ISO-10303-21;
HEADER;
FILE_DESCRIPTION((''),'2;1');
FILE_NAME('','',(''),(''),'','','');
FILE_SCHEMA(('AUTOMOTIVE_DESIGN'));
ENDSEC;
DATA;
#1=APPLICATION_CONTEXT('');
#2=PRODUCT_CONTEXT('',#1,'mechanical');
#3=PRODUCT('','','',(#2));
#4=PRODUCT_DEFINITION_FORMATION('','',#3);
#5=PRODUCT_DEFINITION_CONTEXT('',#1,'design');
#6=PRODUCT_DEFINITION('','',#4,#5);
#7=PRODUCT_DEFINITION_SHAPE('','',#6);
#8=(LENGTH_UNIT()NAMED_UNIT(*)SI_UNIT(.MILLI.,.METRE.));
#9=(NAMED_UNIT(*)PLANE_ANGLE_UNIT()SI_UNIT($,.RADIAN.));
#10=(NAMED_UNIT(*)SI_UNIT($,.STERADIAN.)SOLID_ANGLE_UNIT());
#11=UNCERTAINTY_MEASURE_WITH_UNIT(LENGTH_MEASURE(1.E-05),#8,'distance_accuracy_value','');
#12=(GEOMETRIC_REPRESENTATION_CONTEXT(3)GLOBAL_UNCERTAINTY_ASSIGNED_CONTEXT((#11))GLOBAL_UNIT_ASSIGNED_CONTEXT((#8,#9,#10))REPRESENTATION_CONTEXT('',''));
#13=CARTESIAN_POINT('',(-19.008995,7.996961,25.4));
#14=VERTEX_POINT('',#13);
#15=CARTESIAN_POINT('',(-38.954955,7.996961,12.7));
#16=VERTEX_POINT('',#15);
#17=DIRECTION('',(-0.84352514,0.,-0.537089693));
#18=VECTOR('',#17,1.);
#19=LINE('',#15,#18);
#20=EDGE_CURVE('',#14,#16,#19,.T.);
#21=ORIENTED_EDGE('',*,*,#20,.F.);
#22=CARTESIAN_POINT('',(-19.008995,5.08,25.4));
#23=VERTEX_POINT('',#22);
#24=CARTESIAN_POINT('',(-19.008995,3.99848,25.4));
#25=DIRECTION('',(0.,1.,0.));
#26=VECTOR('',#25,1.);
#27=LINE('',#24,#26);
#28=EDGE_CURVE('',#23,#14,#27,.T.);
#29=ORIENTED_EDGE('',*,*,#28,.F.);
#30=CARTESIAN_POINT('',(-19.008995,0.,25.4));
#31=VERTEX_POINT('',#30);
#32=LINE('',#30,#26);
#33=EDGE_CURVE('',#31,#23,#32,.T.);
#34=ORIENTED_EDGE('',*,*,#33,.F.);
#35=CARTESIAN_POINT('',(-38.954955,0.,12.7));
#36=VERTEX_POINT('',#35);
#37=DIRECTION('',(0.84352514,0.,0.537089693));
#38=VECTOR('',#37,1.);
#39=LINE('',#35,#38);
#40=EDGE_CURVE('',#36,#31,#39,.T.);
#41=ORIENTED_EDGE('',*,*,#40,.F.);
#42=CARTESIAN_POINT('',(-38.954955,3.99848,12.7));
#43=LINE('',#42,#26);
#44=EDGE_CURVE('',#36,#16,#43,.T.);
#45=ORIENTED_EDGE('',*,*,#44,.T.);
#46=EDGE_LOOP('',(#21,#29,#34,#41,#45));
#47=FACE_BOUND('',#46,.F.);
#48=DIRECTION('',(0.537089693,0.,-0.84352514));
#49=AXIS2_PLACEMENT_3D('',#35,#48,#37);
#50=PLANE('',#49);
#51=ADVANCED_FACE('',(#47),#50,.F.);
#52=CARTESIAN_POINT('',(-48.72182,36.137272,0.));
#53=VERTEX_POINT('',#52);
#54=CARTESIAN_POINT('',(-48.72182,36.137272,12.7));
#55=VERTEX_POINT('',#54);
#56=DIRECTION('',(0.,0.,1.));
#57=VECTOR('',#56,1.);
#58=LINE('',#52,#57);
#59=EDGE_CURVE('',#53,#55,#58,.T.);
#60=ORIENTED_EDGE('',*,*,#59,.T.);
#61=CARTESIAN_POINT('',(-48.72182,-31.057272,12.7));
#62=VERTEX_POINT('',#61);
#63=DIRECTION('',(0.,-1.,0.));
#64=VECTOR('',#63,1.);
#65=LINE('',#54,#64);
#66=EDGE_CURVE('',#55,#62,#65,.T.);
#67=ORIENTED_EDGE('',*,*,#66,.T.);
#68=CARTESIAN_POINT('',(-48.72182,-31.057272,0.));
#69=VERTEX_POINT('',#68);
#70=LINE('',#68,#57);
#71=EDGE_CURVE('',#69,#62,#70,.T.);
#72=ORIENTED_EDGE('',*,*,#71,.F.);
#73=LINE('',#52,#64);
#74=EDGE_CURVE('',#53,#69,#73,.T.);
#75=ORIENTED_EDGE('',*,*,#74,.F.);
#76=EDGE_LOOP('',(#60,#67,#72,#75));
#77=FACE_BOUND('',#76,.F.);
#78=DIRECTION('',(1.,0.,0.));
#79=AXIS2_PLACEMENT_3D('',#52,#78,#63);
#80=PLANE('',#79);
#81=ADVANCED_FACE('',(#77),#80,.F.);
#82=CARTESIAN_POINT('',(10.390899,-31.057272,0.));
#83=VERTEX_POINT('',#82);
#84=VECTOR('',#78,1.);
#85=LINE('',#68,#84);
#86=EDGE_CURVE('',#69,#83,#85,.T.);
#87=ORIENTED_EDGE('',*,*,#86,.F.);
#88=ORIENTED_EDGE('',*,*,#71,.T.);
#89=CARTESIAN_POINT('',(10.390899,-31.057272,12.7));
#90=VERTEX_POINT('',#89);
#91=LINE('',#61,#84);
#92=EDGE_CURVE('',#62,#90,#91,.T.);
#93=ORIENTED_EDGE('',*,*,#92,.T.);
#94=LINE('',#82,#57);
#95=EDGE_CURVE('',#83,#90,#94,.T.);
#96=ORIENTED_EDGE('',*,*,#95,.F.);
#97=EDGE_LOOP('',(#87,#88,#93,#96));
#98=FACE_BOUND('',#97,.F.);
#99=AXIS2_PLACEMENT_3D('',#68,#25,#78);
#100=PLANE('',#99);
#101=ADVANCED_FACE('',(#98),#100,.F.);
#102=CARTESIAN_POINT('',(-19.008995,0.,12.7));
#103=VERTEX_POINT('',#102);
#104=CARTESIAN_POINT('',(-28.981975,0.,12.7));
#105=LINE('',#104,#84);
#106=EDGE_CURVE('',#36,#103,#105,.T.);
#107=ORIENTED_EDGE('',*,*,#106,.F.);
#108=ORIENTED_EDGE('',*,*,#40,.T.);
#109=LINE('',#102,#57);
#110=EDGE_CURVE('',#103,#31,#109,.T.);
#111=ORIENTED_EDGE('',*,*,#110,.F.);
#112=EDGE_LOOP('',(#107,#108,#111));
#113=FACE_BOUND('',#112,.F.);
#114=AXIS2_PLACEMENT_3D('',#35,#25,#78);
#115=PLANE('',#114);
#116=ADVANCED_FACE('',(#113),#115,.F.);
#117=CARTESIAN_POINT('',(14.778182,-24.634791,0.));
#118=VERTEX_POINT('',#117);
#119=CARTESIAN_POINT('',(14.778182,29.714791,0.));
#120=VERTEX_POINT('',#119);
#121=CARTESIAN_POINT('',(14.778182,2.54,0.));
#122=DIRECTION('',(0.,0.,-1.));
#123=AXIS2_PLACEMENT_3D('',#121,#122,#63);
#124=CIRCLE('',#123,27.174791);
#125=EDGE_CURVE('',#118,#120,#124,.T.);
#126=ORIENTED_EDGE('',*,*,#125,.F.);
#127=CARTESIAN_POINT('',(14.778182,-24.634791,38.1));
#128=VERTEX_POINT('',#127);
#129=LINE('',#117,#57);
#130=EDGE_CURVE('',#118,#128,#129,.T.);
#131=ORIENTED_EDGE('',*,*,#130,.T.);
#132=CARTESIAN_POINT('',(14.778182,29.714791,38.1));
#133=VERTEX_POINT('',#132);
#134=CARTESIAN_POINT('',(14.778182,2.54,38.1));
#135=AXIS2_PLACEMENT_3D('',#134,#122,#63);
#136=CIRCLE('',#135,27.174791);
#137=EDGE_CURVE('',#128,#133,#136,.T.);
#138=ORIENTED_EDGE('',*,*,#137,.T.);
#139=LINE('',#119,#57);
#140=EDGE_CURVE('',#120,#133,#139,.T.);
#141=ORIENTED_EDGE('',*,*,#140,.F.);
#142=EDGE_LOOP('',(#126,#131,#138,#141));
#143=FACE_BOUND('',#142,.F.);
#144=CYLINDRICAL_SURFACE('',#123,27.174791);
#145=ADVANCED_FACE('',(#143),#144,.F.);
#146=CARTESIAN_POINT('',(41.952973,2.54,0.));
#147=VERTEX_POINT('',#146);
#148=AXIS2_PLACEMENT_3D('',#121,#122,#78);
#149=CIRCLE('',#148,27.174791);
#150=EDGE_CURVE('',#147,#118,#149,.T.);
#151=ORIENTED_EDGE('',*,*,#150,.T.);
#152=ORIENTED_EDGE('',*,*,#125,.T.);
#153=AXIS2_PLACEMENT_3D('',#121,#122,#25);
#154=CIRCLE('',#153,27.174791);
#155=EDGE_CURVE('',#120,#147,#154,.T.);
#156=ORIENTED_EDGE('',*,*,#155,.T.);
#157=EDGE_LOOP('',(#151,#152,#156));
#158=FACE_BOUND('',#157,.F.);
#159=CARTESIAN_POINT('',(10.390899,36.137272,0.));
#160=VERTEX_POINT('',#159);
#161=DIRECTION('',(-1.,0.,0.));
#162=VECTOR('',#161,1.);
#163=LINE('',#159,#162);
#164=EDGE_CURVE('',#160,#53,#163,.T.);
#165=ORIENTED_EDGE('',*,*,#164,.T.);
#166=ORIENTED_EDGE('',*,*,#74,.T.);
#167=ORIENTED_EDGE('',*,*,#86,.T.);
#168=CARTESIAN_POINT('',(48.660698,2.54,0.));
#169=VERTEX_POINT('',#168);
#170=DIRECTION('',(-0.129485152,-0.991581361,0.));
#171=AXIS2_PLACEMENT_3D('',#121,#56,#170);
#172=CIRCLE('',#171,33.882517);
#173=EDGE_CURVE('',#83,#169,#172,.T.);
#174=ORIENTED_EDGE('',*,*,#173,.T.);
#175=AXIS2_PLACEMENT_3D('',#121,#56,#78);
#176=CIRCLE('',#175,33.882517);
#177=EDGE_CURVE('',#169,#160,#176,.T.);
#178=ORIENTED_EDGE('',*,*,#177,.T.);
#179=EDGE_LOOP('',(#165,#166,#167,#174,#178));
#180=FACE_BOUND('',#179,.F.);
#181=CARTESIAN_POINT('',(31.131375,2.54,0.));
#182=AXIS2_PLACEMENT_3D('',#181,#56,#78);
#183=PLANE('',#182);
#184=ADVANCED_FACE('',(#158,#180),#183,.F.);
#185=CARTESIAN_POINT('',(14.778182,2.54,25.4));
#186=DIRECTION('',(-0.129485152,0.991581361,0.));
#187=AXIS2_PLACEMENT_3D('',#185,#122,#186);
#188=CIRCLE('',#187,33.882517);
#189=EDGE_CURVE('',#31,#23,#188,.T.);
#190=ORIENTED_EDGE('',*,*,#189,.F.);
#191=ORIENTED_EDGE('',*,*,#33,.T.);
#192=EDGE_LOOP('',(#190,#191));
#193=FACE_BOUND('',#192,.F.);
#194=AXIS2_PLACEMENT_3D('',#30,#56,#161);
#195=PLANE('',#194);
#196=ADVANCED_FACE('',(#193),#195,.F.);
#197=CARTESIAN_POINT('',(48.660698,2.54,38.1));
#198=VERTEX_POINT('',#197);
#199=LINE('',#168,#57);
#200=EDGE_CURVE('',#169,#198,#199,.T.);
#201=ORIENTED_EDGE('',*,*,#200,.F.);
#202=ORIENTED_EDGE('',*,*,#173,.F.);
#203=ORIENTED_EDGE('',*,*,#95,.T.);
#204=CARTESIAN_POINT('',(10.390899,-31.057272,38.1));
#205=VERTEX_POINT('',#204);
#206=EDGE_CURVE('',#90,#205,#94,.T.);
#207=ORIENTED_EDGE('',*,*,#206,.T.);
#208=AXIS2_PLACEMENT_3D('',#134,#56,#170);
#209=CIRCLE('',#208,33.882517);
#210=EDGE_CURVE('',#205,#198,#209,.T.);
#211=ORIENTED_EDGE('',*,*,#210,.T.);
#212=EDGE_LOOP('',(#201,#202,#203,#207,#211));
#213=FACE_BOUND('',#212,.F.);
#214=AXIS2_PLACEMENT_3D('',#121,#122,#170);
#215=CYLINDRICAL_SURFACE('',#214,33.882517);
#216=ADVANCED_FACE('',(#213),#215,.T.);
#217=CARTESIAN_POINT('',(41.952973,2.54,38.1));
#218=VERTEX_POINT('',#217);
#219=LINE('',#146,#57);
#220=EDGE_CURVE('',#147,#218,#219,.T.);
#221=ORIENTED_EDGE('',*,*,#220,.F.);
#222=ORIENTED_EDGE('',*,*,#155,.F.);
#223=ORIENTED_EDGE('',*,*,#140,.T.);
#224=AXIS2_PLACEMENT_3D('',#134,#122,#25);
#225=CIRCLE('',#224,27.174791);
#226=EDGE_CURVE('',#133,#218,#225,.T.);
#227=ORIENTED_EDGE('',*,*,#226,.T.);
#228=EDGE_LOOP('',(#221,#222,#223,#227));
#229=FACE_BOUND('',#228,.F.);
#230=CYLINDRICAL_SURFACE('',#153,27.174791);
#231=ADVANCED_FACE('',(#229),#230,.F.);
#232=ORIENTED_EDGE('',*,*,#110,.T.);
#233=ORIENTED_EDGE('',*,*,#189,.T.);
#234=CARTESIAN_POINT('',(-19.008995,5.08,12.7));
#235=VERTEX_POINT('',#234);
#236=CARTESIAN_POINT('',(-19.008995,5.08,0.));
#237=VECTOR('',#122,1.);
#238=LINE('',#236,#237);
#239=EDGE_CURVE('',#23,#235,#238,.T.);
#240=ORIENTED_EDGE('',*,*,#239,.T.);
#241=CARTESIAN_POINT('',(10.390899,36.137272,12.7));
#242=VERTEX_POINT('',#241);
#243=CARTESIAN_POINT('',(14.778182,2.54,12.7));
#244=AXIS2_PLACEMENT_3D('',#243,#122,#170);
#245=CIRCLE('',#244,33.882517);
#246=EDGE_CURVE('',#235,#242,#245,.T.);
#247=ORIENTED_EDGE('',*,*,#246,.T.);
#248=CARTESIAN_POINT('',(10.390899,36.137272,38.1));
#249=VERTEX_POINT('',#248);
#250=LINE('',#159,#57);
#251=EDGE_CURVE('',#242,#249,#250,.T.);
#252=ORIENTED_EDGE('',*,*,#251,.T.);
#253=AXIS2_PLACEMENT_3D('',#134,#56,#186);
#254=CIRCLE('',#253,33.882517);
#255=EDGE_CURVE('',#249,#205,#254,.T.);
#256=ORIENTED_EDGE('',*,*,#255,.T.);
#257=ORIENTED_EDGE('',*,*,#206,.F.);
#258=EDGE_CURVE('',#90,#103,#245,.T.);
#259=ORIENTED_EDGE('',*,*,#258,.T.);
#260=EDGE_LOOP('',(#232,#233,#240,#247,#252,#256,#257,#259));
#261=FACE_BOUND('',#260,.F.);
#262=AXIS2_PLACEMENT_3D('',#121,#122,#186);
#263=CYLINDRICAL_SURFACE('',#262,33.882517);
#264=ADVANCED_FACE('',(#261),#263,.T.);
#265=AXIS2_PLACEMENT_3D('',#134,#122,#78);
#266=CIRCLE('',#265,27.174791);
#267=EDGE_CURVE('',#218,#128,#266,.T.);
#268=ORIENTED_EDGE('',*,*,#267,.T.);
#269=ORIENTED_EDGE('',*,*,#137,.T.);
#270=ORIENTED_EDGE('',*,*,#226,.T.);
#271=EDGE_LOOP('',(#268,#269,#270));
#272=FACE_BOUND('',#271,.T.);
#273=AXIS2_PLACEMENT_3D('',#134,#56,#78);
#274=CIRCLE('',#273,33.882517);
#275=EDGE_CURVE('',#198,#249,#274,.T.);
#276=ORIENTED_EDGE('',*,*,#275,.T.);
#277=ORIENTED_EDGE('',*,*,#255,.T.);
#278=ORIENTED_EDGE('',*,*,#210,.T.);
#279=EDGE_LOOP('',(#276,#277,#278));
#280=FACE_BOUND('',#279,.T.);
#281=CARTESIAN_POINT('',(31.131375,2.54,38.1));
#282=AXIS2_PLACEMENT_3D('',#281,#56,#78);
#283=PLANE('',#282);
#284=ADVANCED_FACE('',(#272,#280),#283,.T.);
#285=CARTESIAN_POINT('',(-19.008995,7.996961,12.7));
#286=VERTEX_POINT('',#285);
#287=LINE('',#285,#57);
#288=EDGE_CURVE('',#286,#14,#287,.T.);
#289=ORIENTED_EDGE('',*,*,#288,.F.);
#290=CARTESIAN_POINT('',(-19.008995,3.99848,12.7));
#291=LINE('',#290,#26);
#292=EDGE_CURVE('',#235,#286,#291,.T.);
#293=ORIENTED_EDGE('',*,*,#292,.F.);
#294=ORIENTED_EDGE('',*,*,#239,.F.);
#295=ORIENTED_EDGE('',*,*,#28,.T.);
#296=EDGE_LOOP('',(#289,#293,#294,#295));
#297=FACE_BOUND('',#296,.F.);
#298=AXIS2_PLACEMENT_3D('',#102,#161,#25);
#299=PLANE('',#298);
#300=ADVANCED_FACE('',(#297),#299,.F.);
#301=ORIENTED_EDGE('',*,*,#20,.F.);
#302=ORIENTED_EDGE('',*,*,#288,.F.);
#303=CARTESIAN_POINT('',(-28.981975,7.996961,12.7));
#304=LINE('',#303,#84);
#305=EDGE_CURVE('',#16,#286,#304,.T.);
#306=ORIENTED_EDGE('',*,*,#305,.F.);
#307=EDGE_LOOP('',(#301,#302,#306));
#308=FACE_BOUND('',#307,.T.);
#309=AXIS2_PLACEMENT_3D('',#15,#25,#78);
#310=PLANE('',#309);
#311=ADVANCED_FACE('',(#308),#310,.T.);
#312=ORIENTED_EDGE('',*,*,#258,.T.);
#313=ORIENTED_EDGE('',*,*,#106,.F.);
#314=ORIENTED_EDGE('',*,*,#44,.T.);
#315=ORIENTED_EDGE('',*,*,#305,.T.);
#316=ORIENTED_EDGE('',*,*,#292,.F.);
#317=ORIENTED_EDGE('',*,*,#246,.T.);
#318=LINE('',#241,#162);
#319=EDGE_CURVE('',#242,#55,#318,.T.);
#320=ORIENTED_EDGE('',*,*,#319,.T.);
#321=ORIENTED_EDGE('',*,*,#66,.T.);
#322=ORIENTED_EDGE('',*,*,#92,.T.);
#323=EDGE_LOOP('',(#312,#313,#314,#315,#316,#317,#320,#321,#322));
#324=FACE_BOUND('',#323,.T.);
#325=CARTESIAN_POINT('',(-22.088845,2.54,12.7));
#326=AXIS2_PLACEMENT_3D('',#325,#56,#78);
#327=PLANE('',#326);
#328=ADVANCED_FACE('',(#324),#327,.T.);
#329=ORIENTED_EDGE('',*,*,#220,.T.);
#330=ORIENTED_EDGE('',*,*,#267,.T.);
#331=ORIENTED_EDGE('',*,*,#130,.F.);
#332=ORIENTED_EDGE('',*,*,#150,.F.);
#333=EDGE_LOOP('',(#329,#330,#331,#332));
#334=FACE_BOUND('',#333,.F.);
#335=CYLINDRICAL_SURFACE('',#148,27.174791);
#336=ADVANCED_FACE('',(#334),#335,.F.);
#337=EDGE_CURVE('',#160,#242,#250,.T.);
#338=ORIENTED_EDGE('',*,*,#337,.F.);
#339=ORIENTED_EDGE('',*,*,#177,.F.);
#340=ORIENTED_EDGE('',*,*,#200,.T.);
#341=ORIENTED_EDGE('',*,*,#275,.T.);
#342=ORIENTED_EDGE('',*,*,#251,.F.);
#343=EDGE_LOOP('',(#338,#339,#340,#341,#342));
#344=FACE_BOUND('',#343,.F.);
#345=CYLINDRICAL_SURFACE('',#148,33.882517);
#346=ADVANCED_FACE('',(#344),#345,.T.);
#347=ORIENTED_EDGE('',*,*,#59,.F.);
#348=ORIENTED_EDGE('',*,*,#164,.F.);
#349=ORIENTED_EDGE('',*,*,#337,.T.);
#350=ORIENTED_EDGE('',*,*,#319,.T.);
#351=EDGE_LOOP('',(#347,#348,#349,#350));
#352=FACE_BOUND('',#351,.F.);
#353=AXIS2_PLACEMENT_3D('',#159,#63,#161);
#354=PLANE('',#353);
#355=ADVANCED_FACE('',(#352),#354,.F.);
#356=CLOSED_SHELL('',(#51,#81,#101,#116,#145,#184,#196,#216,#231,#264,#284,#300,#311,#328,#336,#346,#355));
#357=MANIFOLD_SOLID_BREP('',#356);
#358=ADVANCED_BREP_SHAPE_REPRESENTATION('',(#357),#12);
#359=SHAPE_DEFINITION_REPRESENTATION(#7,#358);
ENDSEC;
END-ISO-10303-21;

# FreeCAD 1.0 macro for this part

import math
import FreeCAD as App
import Part
import Sketcher
Q = App.Units.Quantity

doc = App.newDocument("Part")
params = doc.addObject("Spreadsheet::Sheet", "Params")
for row, (alias, value) in enumerate([
    ("pad1_length", "0.5 in"),
    ("pad2_length", "1.5 in"),
    ("pad3_length", "0.5 in"),
    ("sketch4_height", "0.5 in"),
    ("pocket1_length", "1 in"),
], start=1):
    params.set(f"A{row}", alias)
    params.set(f"B{row}", "=" + value)
    params.setAlias(f"B{row}", alias)

body = doc.addObject("PartDesign::Body", "Body")

# Sketch on XY plane
sketch1 = body.newObject("Sketcher::SketchObject", "Sketch")
sketch1.AttachmentSupport = (doc.getObject("XY_Plane"), [""])
sketch1.MapMode = "FlatFace"
sketch1.addGeometry([
    Part.LineSegment(App.Vector(10.390899, 36.137272, 0), App.Vector(-48.72182, 36.137272, 0)),
    Part.LineSegment(App.Vector(-48.72182, 36.137272, 0), App.Vector(-48.72182, -31.057272, 0)),
    Part.LineSegment(App.Vector(-48.72182, -31.057272, 0), App.Vector(10.390899, -31.057272, 0)),
    Part.ArcOfCircle(Part.Circle(App.Vector(14.778182, 2.54, 0), App.Vector(0, 0, 1), 33.882517), math.radians(97.439842), math.radians(262.560158)),
], False)
sketch1.addConstraint([
    Sketcher.Constraint("Coincident", 0, 2, 1, 1),
    Sketcher.Constraint("Coincident", 1, 2, 2, 1),
    Sketcher.Constraint("Coincident", 2, 2, 3, 2),
    Sketcher.Constraint("Coincident", 3, 1, 0, 1),
    Sketcher.Constraint("Horizontal", 0),
    Sketcher.Constraint("Vertical", 1),
    Sketcher.Constraint("Horizontal", 2),
    Sketcher.Constraint("Vertical", 2, 2, 3, 1),
    Sketcher.Constraint("DistanceY", -1, 1, 3, 3, Q("0.1 in")),
    Sketcher.Constraint("DistanceX", 0, 2, 3, 3, Q("2.5000001 in")),
    Sketcher.Constraint("Radius", 3, 33.882517),
    Sketcher.Constraint("DistanceX", 0, 2, 0, 1, 59.112719),
    Sketcher.Constraint("DistanceX", -1, 1, 2, 2, 10.390899),
])
pad1 = body.newObject("PartDesign::Pad", "Pad")
pad1.Profile = sketch1
pad1.setExpression("Length", "Params.pad1_length")

# Sketch on XY plane
sketch2 = body.newObject("Sketcher::SketchObject", "Sketch001")
sketch2.AttachmentSupport = (doc.getObject("XY_Plane"), [""])
sketch2.MapMode = "FlatFace"
sketch2.addGeometry([
    Part.ArcOfCircle(Part.Circle(App.Vector(14.778182, 2.54, 0), App.Vector(0, 0, 1), 33.882517), math.radians(0), math.radians(97.439842)),  # 0
    Part.ArcOfCircle(Part.Circle(App.Vector(14.778182, 2.54, 0), App.Vector(0, 0, 1), 33.882517), math.radians(97.439842), math.radians(262.560158)),  # 1
    Part.ArcOfCircle(Part.Circle(App.Vector(14.778182, 2.54, 0), App.Vector(0, 0, 1), 33.882517), math.radians(-97.439842), math.radians(0)),  # 2
    Part.ArcOfCircle(Part.Circle(App.Vector(14.778182, 2.54, 0), App.Vector(0, 0, 1), 27.174791), math.radians(0), math.radians(90)),  # 3
    Part.ArcOfCircle(Part.Circle(App.Vector(14.778182, 2.54, 0), App.Vector(0, 0, 1), 27.174791), math.radians(-90), math.radians(0)),  # 4
    Part.ArcOfCircle(Part.Circle(App.Vector(14.778182, 2.54, 0), App.Vector(0, 0, 1), 27.174791), math.radians(90), math.radians(270)),  # 5
], False)
sketch2.addConstraint([
    Sketcher.Constraint("Tangent", 0, 2, 1, 1),
    Sketcher.Constraint("Tangent", 1, 2, 2, 1),
    Sketcher.Constraint("Tangent", 2, 2, 0, 1),
    Sketcher.Constraint("Tangent", 3, 1, 4, 2),
    Sketcher.Constraint("Tangent", 4, 1, 5, 2),
    Sketcher.Constraint("Tangent", 5, 1, 3, 2),
    Sketcher.Constraint("Coincident", 3, 3, 0, 3),
    Sketcher.Constraint("Horizontal", 5, 3, 2, 2),
    Sketcher.Constraint("Horizontal", 2, 2, 3, 1),
    Sketcher.Constraint("Vertical", 0, 2, 1, 2),
    Sketcher.Constraint("Vertical", 5, 3, 4, 1),
    Sketcher.Constraint("Vertical", 4, 1, 5, 1),
    Sketcher.Constraint("DistanceY", -1, 1, 0, 3, Q("0.1 in")),
    Sketcher.Constraint("Radius", 3, 27.174791),
    Sketcher.Constraint("Radius", 0, 33.882517),
    Sketcher.Constraint("DistanceX", -1, 1, 0, 2, 10.390899),
    Sketcher.Constraint("DistanceX", -1, 1, 2, 2, 48.660698),
])
pad2 = body.newObject("PartDesign::Pad", "Pad001")
pad2.Profile = sketch2
pad2.setExpression("Length", "Params.pad2_length")

# Sketch on XY plane
sketch3 = body.newObject("Sketcher::SketchObject", "Sketch002")
sketch3.AttachmentSupport = (doc.getObject("XY_Plane"), [""])
sketch3.MapMode = "FlatFace"
sketch3.AttachmentOffset = App.Placement(App.Vector(0, 0, 0.5 * 25.4), App.Rotation())
sketch3.addGeometry([
    Part.LineSegment(App.Vector(-38.954955, 7.996961, 0), App.Vector(-38.954955, 0, 0)),
    Part.LineSegment(App.Vector(-38.954955, 0, 0), App.Vector(-19.008995, 0, 0)),
    Part.LineSegment(App.Vector(-19.008995, 0, 0), App.Vector(-19.008995, 7.996961, 0)),
    Part.LineSegment(App.Vector(-19.008995, 7.996961, 0), App.Vector(-38.954955, 7.996961, 0)),
], False)
sketch3.addConstraint([
    Sketcher.Constraint("Coincident", 0, 2, 1, 1),
    Sketcher.Constraint("Coincident", 1, 2, 2, 1),
    Sketcher.Constraint("Coincident", 2, 2, 3, 1),
    Sketcher.Constraint("Coincident", 3, 2, 0, 1),
    Sketcher.Constraint("Vertical", 0),
    Sketcher.Constraint("Horizontal", 1),
    Sketcher.Constraint("Vertical", 2),
    Sketcher.Constraint("Horizontal", 3),
    Sketcher.Constraint("PointOnObject", 0, 2, -1),
    Sketcher.Constraint("DistanceX", 1, 1, 1, 2, 19.945959),
    Sketcher.Constraint("DistanceY", 0, 2, 0, 1, 7.996961),
    Sketcher.Constraint("DistanceX", 0, 2, -1, 1, 38.954955),
])
pad3 = body.newObject("PartDesign::Pad", "Pad002")
pad3.Profile = sketch3
pad3.setExpression("Length", "Params.pad3_length")

# Sketch on XZ plane
sketch4 = body.newObject("Sketcher::SketchObject", "Sketch003")
sketch4.AttachmentSupport = (doc.getObject("XZ_Plane"), [""])
sketch4.MapMode = "FlatFace"
sketch4.addGeometry([
    Part.LineSegment(App.Vector(-38.954955, 12.7, 0), App.Vector(-19.008995, 25.4, 0)),
    Part.LineSegment(App.Vector(-19.008995, 25.4, 0), App.Vector(-38.954955, 25.4, 0)),
    Part.LineSegment(App.Vector(-38.954955, 25.4, 0), App.Vector(-38.954955, 12.7, 0)),
], False)
sketch4.addConstraint([
    Sketcher.Constraint("Coincident", 0, 2, 1, 1),
    Sketcher.Constraint("Coincident", 1, 2, 2, 1),
    Sketcher.Constraint("Coincident", 2, 2, 0, 1),
    Sketcher.Constraint("Horizontal", 1),
    Sketcher.Constraint("Vertical", 2),
    Sketcher.Constraint("DistanceY", 2, 2, 2, 1, Q("0.5 in")),
    Sketcher.Constraint("DistanceY", -1, 1, 0, 2, Q("1 in")),
    Sketcher.Constraint("DistanceX", 1, 2, 1, 1, 19.945959),
    Sketcher.Constraint("DistanceX", 0, 2, -1, 1, 19.008995),
])
sketch4.setExpression("Constraints[5]", "Params.sketch4_height")
pocket1 = body.newObject("PartDesign::Pocket", "Pocket")
pocket1.Profile = sketch4
pocket1.setExpression("Length", "Params.pocket1_length")

doc.recompute()
